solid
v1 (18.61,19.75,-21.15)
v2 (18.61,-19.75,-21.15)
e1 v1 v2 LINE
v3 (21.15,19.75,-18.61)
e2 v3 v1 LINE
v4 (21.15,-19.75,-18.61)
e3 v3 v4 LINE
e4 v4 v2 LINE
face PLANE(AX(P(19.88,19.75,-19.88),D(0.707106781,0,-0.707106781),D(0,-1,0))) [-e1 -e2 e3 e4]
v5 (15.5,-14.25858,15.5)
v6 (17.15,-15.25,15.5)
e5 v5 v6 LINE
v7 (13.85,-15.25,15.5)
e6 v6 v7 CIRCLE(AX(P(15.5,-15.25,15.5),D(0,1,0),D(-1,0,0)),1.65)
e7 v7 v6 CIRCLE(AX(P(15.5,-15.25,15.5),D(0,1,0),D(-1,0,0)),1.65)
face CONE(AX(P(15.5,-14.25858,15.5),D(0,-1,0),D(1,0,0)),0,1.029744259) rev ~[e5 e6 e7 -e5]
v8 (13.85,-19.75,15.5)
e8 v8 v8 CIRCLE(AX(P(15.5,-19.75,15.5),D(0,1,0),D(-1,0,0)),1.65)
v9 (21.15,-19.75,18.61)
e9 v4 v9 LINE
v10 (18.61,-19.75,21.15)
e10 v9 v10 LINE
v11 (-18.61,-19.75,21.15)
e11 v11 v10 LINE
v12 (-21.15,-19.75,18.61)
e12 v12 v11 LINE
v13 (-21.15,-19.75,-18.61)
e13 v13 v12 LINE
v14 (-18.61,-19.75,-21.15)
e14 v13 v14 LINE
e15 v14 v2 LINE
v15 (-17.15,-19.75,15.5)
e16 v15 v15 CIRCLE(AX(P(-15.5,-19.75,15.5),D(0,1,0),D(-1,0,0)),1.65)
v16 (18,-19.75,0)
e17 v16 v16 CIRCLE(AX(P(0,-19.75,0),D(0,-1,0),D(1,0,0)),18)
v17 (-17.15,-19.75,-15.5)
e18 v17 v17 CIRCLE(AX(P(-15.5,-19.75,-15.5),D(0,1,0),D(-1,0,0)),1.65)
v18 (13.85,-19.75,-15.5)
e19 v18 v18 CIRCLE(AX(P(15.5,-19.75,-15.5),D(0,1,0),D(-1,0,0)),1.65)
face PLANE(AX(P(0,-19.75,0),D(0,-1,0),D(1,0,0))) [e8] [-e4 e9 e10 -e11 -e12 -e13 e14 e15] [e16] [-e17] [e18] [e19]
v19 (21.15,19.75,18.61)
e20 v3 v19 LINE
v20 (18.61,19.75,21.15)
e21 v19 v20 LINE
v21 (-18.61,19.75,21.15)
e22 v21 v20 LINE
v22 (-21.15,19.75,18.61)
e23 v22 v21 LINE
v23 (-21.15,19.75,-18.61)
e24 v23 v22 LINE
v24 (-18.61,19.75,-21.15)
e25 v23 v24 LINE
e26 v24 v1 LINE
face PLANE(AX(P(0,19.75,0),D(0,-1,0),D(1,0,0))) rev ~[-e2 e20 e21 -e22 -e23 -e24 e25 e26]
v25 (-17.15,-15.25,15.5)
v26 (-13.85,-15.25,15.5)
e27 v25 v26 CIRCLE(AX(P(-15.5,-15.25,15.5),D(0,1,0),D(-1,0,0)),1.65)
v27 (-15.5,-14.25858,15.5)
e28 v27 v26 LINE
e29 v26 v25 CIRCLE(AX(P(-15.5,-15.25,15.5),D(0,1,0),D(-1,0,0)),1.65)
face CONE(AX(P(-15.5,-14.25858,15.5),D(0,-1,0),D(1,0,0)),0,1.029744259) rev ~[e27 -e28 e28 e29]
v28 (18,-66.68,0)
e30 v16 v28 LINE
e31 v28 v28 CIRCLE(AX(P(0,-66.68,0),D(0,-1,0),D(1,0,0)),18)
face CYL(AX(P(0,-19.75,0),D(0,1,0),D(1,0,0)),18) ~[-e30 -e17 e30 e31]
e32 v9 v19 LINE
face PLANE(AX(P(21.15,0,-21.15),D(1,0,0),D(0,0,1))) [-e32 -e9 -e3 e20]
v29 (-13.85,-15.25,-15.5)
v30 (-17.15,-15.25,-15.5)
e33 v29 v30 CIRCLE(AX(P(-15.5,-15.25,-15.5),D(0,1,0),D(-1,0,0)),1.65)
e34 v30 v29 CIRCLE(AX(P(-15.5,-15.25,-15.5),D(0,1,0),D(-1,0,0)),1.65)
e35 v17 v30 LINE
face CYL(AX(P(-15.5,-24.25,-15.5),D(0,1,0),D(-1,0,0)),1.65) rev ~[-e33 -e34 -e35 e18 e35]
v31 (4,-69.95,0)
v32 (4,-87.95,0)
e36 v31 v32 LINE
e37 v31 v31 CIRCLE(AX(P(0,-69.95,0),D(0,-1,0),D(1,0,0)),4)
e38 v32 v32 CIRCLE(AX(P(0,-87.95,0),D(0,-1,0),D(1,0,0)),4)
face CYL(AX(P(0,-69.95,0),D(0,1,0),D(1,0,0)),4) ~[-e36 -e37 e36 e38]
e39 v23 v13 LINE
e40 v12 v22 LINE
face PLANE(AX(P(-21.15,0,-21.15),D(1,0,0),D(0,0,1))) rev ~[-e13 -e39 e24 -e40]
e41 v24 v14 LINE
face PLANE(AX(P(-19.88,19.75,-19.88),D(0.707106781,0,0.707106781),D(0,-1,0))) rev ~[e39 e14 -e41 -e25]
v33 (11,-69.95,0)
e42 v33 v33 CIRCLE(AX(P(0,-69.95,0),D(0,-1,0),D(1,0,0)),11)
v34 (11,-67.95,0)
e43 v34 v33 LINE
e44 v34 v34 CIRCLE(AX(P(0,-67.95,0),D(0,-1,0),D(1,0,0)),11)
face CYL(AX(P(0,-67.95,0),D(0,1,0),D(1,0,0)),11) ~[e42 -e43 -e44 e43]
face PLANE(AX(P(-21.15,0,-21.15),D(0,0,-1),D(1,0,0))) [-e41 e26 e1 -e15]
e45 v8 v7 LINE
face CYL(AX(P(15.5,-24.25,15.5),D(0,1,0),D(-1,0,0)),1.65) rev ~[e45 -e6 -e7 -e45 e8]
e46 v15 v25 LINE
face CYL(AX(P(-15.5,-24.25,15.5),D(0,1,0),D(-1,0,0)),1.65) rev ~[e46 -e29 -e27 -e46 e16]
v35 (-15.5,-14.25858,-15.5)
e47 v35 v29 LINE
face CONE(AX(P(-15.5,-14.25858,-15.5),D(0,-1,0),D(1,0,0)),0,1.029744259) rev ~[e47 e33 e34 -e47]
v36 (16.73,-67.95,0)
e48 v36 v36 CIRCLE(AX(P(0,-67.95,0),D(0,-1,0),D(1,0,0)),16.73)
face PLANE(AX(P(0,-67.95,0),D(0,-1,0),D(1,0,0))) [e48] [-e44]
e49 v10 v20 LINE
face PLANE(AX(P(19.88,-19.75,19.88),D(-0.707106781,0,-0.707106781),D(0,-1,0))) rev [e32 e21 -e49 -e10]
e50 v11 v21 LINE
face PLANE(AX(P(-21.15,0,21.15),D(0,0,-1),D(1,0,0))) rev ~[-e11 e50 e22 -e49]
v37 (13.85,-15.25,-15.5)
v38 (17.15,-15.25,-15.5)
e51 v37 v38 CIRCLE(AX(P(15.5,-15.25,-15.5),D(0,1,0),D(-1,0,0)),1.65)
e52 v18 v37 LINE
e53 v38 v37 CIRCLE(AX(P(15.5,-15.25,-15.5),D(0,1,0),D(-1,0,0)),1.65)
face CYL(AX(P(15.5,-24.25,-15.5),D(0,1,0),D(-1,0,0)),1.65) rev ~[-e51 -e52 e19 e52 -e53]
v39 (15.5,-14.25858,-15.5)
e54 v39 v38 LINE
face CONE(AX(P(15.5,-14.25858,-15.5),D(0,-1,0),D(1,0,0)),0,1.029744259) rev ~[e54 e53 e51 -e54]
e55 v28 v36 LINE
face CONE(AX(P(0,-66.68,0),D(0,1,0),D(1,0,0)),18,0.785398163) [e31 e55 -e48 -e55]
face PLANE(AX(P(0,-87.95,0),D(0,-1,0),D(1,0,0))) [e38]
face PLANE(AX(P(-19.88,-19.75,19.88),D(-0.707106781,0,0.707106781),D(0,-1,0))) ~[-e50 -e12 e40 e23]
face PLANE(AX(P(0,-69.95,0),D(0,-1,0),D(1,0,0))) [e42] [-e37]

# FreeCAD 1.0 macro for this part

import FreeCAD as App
import Part
import Sketcher
from FreeCAD import Vector
Q = App.Units.Quantity


def edges_at(feature, points):
    """Names of the edges that pass closest to the given points."""
    edges = feature.Shape.Edges
    near = lambda p: min(range(len(edges)), key=lambda i: edges[i].distToShape(Part.Vertex(*p))[0])
    return sorted({f"Edge{near(p) + 1}" for p in points})


def add_polygon(sketch, points):
    """Adds a closed chain of lines whose ends are joined by coincident constraints."""
    first, n = sketch.GeometryCount, len(points)
    for a, b in zip(points, points[1:] + points[:1]):
        sketch.addGeometry(Part.LineSegment(App.Vector(*a, 0), App.Vector(*b, 0)), False)
    for i in range(n):
        sketch.addConstraint(Sketcher.Constraint("Coincident", first + i, 2, first + (i + 1) % n, 1))

doc = App.newDocument("Part")
body = doc.addObject("PartDesign::Body", "Body")

# Sketch on XZ plane
sketch1 = doc.addObject("Sketcher::SketchObject", "Sketch")
body.addObject(sketch1)
sketch1.AttachmentSupport = (doc.XZ_Plane, [""])
sketch1.MapMode = "FlatFace"
add_polygon(sketch1, [(-21.15, 21.15), (-21.15, -21.15), (21.15, -21.15), (21.15, 21.15)])  # lines 0-3
sketch1.addConstraint([
    Sketcher.Constraint("Vertical", 0),
    Sketcher.Constraint("Horizontal", 1),
    Sketcher.Constraint("Vertical", 2),
    Sketcher.Constraint("Horizontal", 3),
    Sketcher.Constraint("Symmetric", 0, 2, 2, 2, -1, 1),
    Sketcher.Constraint("Equal", 3, 0),
    Sketcher.Constraint("DistanceX", 1, 1, 1, 2, Q("42.3 mm")),
])
pad1 = doc.addObject("PartDesign::Pad", "Pad")
body.addObject(pad1)
pad1.Profile = sketch1
pad1.Length = 39.5
pad1.Midplane = True
doc.recompute()

chamfer = doc.addObject("PartDesign::Chamfer", "Chamfer")
body.addObject(chamfer)
chamfer.Base = (pad1, edges_at(pad1, [
    (21.15, 0, 21.15),
    (-21.15, 0, 21.15),
    (-21.15, 0, -21.15),
    (21.15, 0, -21.15),
]))
chamfer.Size = 2.54

# Sketch on XZ plane
sketch2 = doc.addObject("Sketcher::SketchObject", "Sketch001")
body.addObject(sketch2)
sketch2.AttachmentSupport = (doc.XZ_Plane, [""])
sketch2.MapMode = "FlatFace"
sketch2.AttachmentOffset = App.Placement(Vector(0, 0, 19.75), App.Rotation())
sketch2.addGeometry([
    Part.Circle(Vector(15.5, 15.5, 0), Vector(0, 0, 1), 1.65),
    Part.Circle(Vector(15.5, -15.5, 0), Vector(0, 0, 1), 1.65),
    Part.Circle(Vector(-15.5, -15.5, 0), Vector(0, 0, 1), 1.65),
    Part.Circle(Vector(-15.5, 15.5, 0), Vector(0, 0, 1), 1.65),
], False)
sketch2.addConstraint([
    Sketcher.Constraint("Equal", 0, 1),
    Sketcher.Constraint("Equal", 1, 2),
    Sketcher.Constraint("Equal", 2, 3),
    Sketcher.Constraint("Symmetric", 0, 3, 2, 3, -1, 1),
    Sketcher.Constraint("Symmetric", 1, 3, 3, 3, -1, 1),
    Sketcher.Constraint("Symmetric", 1, 3, 2, 3, -2),
    Sketcher.Constraint("Diameter", 0, Q("3.3 mm")),
    Sketcher.Constraint("DistanceY", 1, 3, 0, 3, Q("31 mm")),
    Sketcher.Constraint("DistanceX", 2, 3, 1, 3, Q("31 mm")),
])
doc.recompute()
hole = doc.addObject("PartDesign::Hole", "Hole")
body.addObject(hole)
hole.Profile = sketch2
hole.ThreadType = "None"
hole.Diameter = 3.3
hole.DepthType = "Dimension"
hole.Depth = 4.5
hole.DrillPoint = "Angled"
hole.DrillPointAngle = 118

# Sketch on XZ plane
sketch3 = doc.addObject("Sketcher::SketchObject", "Sketch002")
body.addObject(sketch3)
sketch3.AttachmentSupport = (doc.XZ_Plane, [""])
sketch3.MapMode = "FlatFace"
sketch3.AttachmentOffset = App.Placement(Vector(0, 0, 19.75), App.Rotation())
sketch3.addGeometry(Part.Circle(Vector(0, 0, 0), Vector(0, 0, 1), 18), False)
sketch3.addConstraint([
    Sketcher.Constraint("Coincident", 0, 3, -1, 1),
    Sketcher.Constraint("Diameter", 0, Q("36 mm")),
])
pad2 = doc.addObject("PartDesign::Pad", "Pad001")
body.addObject(pad2)
pad2.Profile = sketch3
pad2.Length = 48.2

# Sketch on XZ plane
sketch4 = doc.addObject("Sketcher::SketchObject", "Sketch003")
body.addObject(sketch4)
sketch4.AttachmentSupport = (doc.XZ_Plane, [""])
sketch4.MapMode = "FlatFace"
sketch4.AttachmentOffset = App.Placement(Vector(0, 0, 67.95), App.Rotation())
sketch4.addGeometry(Part.Circle(Vector(0, 0, 0), Vector(0, 0, 1), 11), False)
sketch4.addConstraint([
    Sketcher.Constraint("Coincident", 0, 3, -1, 1),
    Sketcher.Constraint("Diameter", 0, Q("22 mm")),
])
pad3 = doc.addObject("PartDesign::Pad", "Pad002")
body.addObject(pad3)
pad3.Profile = sketch4
pad3.Length = 2

# Sketch on XZ plane
sketch5 = doc.addObject("Sketcher::SketchObject", "Sketch004")
body.addObject(sketch5)
sketch5.AttachmentSupport = (doc.XZ_Plane, [""])
sketch5.MapMode = "FlatFace"
sketch5.AttachmentOffset = App.Placement(Vector(0, 0, 69.95), App.Rotation())
sketch5.addGeometry(Part.Circle(Vector(0, 0, 0), Vector(0, 0, 1), 4), False)
sketch5.addConstraint([
    Sketcher.Constraint("Coincident", 0, 3, -1, 1),
    Sketcher.Constraint("Diameter", 0, Q("8 mm")),
])
pad4 = doc.addObject("PartDesign::Pad", "Pad003")
body.addObject(pad4)
pad4.Profile = sketch5
pad4.Length = 18
doc.recompute()

chamfer2 = doc.addObject("PartDesign::Chamfer", "Chamfer001")
body.addObject(chamfer2)
chamfer2.Base = (pad4, edges_at(pad4, [(-18, -67.95, 0)]))
chamfer2.Size = 1.27

doc.recompute()
